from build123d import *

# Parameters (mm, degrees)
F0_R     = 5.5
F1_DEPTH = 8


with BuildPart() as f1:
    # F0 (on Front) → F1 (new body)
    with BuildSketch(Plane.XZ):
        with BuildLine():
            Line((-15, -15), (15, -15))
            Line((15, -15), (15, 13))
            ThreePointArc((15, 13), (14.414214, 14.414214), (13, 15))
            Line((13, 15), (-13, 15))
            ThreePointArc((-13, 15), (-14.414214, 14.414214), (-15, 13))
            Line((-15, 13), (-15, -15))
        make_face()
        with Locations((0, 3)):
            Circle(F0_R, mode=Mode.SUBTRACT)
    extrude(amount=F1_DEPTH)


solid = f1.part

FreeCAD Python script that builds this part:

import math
import FreeCAD as App
import Part
import Sketcher

doc = App.newDocument("Part")
body = doc.addObject("PartDesign::Body", "Body")

# Sketch on XZ plane
sketch1 = body.newObject("Sketcher::SketchObject", "Sketch")
sketch1.AttachmentSupport = (doc.getObject("XZ_Plane"), [""])
sketch1.MapMode = "FlatFace"
sketch1.addGeometry(Part.LineSegment(App.Vector(-15, -15, 0), App.Vector(15, -15, 0)), False)
sketch1.addGeometry(Part.LineSegment(App.Vector(15, -15, 0), App.Vector(15, 13, 0)), False)
sketch1.addGeometry(Part.ArcOfCircle(Part.Circle(App.Vector(13, 13, 0), App.Vector(0, 0, 1), 2), math.radians(0), math.radians(90)), False)
sketch1.addGeometry(Part.LineSegment(App.Vector(13, 15, 0), App.Vector(-13, 15, 0)), False)
sketch1.addGeometry(Part.ArcOfCircle(Part.Circle(App.Vector(-13, 13, 0), App.Vector(0, 0, 1), 2), math.radians(90), math.radians(180)), False)
sketch1.addGeometry(Part.LineSegment(App.Vector(-15, 13, 0), App.Vector(-15, -15, 0)), False)
sketch1.addGeometry(Part.Circle(App.Vector(0, 3, 0), App.Vector(0, 0, 1), 5.5), False)
sketch1.addConstraint(Sketcher.Constraint("Coincident", 0, 2, 1, 1))
sketch1.addConstraint(Sketcher.Constraint("Tangent", 1, 2, 2, 1))
sketch1.addConstraint(Sketcher.Constraint("Tangent", 2, 2, 3, 1))
sketch1.addConstraint(Sketcher.Constraint("Tangent", 3, 2, 4, 1))
sketch1.addConstraint(Sketcher.Constraint("Tangent", 4, 2, 5, 1))
sketch1.addConstraint(Sketcher.Constraint("Coincident", 5, 2, 0, 1))
sketch1.addConstraint(Sketcher.Constraint("Horizontal", 0))
sketch1.addConstraint(Sketcher.Constraint("Vertical", 1))
sketch1.addConstraint(Sketcher.Constraint("Horizontal", 3))
sketch1.addConstraint(Sketcher.Constraint("Vertical", 5))
sketch1.addConstraint(Sketcher.Constraint("Equal", 2, 4))
sketch1.addConstraint(Sketcher.Constraint("PointOnObject", 6, 3, -2))
sketch1.addConstraint(Sketcher.Constraint("Diameter", 6, 11.0))
sketch1.addConstraint(Sketcher.Constraint("Radius", 2, 1.999999))
sketch1.addConstraint(Sketcher.Constraint("DistanceX", 0, 1, 0, 2, 30.0))
sketch1.addConstraint(Sketcher.Constraint("DistanceY", 1, 1, 1, 2, 28.0))
sketch1.addConstraint(Sketcher.Constraint("DistanceX", -1, 1, 2, 3, 13.000001))
sketch1.addConstraint(Sketcher.Constraint("DistanceY", -1, 1, 2, 3, 13.000001))
sketch1.addConstraint(Sketcher.Constraint("DistanceY", -1, 1, 6, 3, 3.0))
pad1 = body.newObject("PartDesign::Pad", "Pad")
pad1.Profile = sketch1
pad1.Length = 8

doc.recompute()
